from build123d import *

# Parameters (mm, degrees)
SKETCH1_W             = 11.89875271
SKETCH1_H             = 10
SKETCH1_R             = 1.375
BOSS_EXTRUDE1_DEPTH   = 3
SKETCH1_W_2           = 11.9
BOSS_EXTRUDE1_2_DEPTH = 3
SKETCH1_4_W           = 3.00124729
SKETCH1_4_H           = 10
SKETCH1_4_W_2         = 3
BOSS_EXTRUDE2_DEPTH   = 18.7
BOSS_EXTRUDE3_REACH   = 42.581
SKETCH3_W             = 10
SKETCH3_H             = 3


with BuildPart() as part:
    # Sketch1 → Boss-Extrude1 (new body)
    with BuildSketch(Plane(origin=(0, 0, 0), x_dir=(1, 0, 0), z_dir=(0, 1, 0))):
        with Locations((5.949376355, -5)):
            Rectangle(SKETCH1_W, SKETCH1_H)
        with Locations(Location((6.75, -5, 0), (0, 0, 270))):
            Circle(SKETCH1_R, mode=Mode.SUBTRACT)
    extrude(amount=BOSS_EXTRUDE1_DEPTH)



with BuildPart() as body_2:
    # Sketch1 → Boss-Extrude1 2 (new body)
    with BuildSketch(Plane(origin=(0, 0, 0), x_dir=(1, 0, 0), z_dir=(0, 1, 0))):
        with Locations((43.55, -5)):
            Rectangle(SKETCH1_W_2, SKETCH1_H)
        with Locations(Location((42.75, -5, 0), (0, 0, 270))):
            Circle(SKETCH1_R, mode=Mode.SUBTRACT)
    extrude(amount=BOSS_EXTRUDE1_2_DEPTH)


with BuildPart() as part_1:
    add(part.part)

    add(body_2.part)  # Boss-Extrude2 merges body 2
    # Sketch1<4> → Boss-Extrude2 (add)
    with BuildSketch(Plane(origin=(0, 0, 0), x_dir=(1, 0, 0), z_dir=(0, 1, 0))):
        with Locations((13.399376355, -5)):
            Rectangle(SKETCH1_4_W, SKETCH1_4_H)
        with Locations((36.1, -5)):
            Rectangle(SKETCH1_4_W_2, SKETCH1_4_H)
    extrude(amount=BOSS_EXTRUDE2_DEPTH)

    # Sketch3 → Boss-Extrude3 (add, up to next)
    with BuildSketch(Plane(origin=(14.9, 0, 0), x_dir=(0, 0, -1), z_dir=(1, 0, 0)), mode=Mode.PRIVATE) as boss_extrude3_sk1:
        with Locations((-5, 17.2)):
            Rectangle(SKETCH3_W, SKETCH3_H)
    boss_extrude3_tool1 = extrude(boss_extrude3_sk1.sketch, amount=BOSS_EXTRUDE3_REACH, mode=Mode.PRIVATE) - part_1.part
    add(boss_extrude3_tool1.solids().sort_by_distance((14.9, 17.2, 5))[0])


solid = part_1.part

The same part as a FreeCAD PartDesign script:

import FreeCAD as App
import Part
import Sketcher

doc = App.newDocument("Part")
body = doc.addObject("PartDesign::Body", "Body")

sketch1 = body.newObject("Sketcher::SketchObject", "Sketch")
sketch1.AttachmentSupport = (doc.getObject("XZ_Plane"), [""])
sketch1.MapMode = "FlatFace"
sketch1.addGeometry([
    Part.LineSegment(App.Vector(0, 0, 0), App.Vector(0, 10, 0)),
    Part.LineSegment(App.Vector(0, 10, 0), App.Vector(11.9, 10, 0)),
    Part.LineSegment(App.Vector(11.9, 10, 0), App.Vector(11.9, 0, 0)),
    Part.LineSegment(App.Vector(11.9, 0, 0), App.Vector(0, 0, 0)),
    Part.Circle(App.Vector(6.8, 5, 0), App.Vector(0, 0, 1), 1.4),
], False)
sketch1.addConstraint([
    Sketcher.Constraint("Coincident", 0, 2, 1, 1),
    Sketcher.Constraint("Coincident", 1, 2, 2, 1),
    Sketcher.Constraint("Coincident", 2, 2, 3, 1),
    Sketcher.Constraint("Coincident", 3, 2, 0, 1),
    Sketcher.Constraint("Vertical", 0),
    Sketcher.Constraint("Horizontal", 1),
    Sketcher.Constraint("Vertical", 2),
    Sketcher.Constraint("Horizontal", 3),
    Sketcher.Constraint("Coincident", 3, 2, -1, 1),
    Sketcher.Constraint("Diameter", 4, 2.75),
    Sketcher.Constraint("DistanceY", 0, 1, 0, 2, 10.0),
    Sketcher.Constraint("DistanceY", -1, 1, 4, 3, 5.0),
    Sketcher.Constraint("DistanceX", -1, 1, 4, 3, 6.75),
    Sketcher.Constraint("DistanceX", 1, 1, 1, 2, 11.898753),
])
pad1 = body.newObject("PartDesign::Pad", "Pad")
pad1.Profile = sketch1
pad1.Length = 3
pad1.Reversed = True
body2 = doc.addObject("PartDesign::Body", "Body001")

sketch2 = body2.newObject("Sketcher::SketchObject", "Sketch001")
sketch2.AttachmentSupport = (doc.getObject("XZ_Plane001"), [""])
sketch2.MapMode = "FlatFace"
sketch2.addGeometry([
    Part.LineSegment(App.Vector(37.6, 0, 0), App.Vector(37.6, 10, 0)),
    Part.LineSegment(App.Vector(37.6, 10, 0), App.Vector(49.5, 10, 0)),
    Part.LineSegment(App.Vector(49.5, 10, 0), App.Vector(49.5, 0, 0)),
    Part.LineSegment(App.Vector(49.5, 0, 0), App.Vector(37.6, 0, 0)),
    Part.Circle(App.Vector(42.8, 5, 0), App.Vector(0, 0, 1), 1.4),
], False)
sketch2.addConstraint([
    Sketcher.Constraint("Coincident", 0, 2, 1, 1),
    Sketcher.Constraint("Coincident", 1, 2, 2, 1),
    Sketcher.Constraint("Coincident", 2, 2, 3, 1),
    Sketcher.Constraint("Coincident", 3, 2, 0, 1),
    Sketcher.Constraint("Vertical", 0),
    Sketcher.Constraint("Horizontal", 1),
    Sketcher.Constraint("Vertical", 2),
    Sketcher.Constraint("Horizontal", 3),
    Sketcher.Constraint("PointOnObject", 2, 2, -1),
    Sketcher.Constraint("Diameter", 4, 2.75),
    Sketcher.Constraint("DistanceY", 0, 1, 0, 2, 10.0),
    Sketcher.Constraint("DistanceX", 1, 1, 1, 2, 11.9),
    Sketcher.Constraint("DistanceY", -1, 1, 4, 3, 5.0),
    Sketcher.Constraint("DistanceX", -1, 1, 0, 2, 37.6),
    Sketcher.Constraint("DistanceX", -1, 1, 4, 3, 42.75),
])
pad2 = body2.newObject("PartDesign::Pad", "Pad001")
pad2.Profile = sketch2
pad2.Length = 3
pad2.Reversed = True
body.AllowCompound = True
doc.recompute()

boolean = body.newObject("PartDesign::Boolean", "Boolean")
boolean.Type = "Fuse"
boolean.addObjects([body2])

sketch3 = body.newObject("Sketcher::SketchObject", "Sketch002")
sketch3.AttachmentSupport = (doc.getObject("XZ_Plane"), [""])
sketch3.MapMode = "FlatFace"
sketch3.addGeometry([
    Part.LineSegment(App.Vector(11.9, 0, 0), App.Vector(11.9, 10, 0)),
    Part.LineSegment(App.Vector(11.9, 10, 0), App.Vector(14.9, 10, 0)),
    Part.LineSegment(App.Vector(14.9, 10, 0), App.Vector(14.9, 0, 0)),
    Part.LineSegment(App.Vector(14.9, 0, 0), App.Vector(11.9, 0, 0)),
    Part.LineSegment(App.Vector(34.6, 0, 0), App.Vector(34.6, 10, 0)),
    Part.LineSegment(App.Vector(34.6, 10, 0), App.Vector(37.6, 10, 0)),
    Part.LineSegment(App.Vector(37.6, 10, 0), App.Vector(37.6, 0, 0)),
    Part.LineSegment(App.Vector(37.6, 0, 0), App.Vector(34.6, 0, 0)),
], False)
sketch3.addConstraint([
    Sketcher.Constraint("Coincident", 0, 2, 1, 1),
    Sketcher.Constraint("Coincident", 1, 2, 2, 1),
    Sketcher.Constraint("Coincident", 2, 2, 3, 1),
    Sketcher.Constraint("Coincident", 3, 2, 0, 1),
    Sketcher.Constraint("Coincident", 4, 2, 5, 1),
    Sketcher.Constraint("Coincident", 5, 2, 6, 1),
    Sketcher.Constraint("Coincident", 6, 2, 7, 1),
    Sketcher.Constraint("Coincident", 7, 2, 4, 1),
    Sketcher.Constraint("Vertical", 0),
    Sketcher.Constraint("Horizontal", 1),
    Sketcher.Constraint("Vertical", 2),
    Sketcher.Constraint("Horizontal", 3),
    Sketcher.Constraint("Vertical", 4),
    Sketcher.Constraint("Horizontal", 5),
    Sketcher.Constraint("Vertical", 6),
    Sketcher.Constraint("Horizontal", 7),
    Sketcher.Constraint("PointOnObject", 2, 2, -1),
    Sketcher.Constraint("PointOnObject", 6, 2, -1),
    Sketcher.Constraint("Horizontal", 1, 2, 4, 2),
    Sketcher.Constraint("DistanceX", 5, 1, 5, 2, 3.0),
    Sketcher.Constraint("DistanceY", 0, 1, 0, 2, 10.0),
    Sketcher.Constraint("DistanceX", -1, 1, 1, 2, 14.9),
    Sketcher.Constraint("DistanceX", -1, 1, 4, 2, 34.6),
    Sketcher.Constraint("DistanceX", 1, 1, 1, 2, 3.001247),
])
pad3 = body.newObject("PartDesign::Pad", "Pad002")
pad3.Profile = sketch3
pad3.Length = 18.7
pad3.Reversed = True

sketch4 = body.newObject("Sketcher::SketchObject", "Sketch003")
sketch4.AttachmentSupport = (doc.getObject("YZ_Plane"), [""])
sketch4.MapMode = "FlatFace"
sketch4.AttachmentOffset = App.Placement(App.Vector(0, 0, 14.9), App.Rotation())
sketch4.addGeometry([
    Part.LineSegment(App.Vector(18.7, 10, 0), App.Vector(15.7, 10, 0)),
    Part.LineSegment(App.Vector(15.7, 10, 0), App.Vector(15.7, 0, 0)),
    Part.LineSegment(App.Vector(15.7, 0, 0), App.Vector(18.7, 0, 0)),
    Part.LineSegment(App.Vector(18.7, 0, 0), App.Vector(18.7, 10, 0)),
], False)
sketch4.addConstraint([
    Sketcher.Constraint("Coincident", 0, 2, 1, 1),
    Sketcher.Constraint("Coincident", 1, 2, 2, 1),
    Sketcher.Constraint("Coincident", 2, 2, 3, 1),
    Sketcher.Constraint("Coincident", 3, 2, 0, 1),
    Sketcher.Constraint("Horizontal", 0),
    Sketcher.Constraint("Vertical", 1),
    Sketcher.Constraint("Horizontal", 2),
    Sketcher.Constraint("Vertical", 3),
    Sketcher.Constraint("PointOnObject", 1, 2, -1),
    Sketcher.Constraint("DistanceX", 0, 2, 0, 1, 3.0),
    Sketcher.Constraint("DistanceY", 1, 2, 1, 1, 10.0),
    Sketcher.Constraint("DistanceX", -1, 1, 0, 2, 15.7),
])
pad4 = body.newObject("PartDesign::Pad", "Pad003")
pad4.Profile = sketch4
pad4.Type = "UpToFirst"

doc.recompute()
